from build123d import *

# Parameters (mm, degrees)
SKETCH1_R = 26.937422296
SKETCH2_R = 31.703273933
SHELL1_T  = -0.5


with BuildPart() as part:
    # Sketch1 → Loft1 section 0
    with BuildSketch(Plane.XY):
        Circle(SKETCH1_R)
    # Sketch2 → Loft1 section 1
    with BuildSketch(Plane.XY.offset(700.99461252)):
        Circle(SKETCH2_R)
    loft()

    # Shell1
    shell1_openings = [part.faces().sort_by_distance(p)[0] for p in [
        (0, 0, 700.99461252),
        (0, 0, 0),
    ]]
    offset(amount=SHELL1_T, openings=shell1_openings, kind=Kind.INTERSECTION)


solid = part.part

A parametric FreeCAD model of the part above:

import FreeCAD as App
import Part
import Sketcher


def faces_at(feature, points):
    """Names of the faces that lie closest to the given points."""
    faces = feature.Shape.Faces
    near = lambda p: min(range(len(faces)), key=lambda i: faces[i].distToShape(Part.Vertex(*p))[0])
    return sorted({f"Face{near(p) + 1}" for p in points})

doc = App.newDocument("Part")
params = doc.addObject("Spreadsheet::Sheet", "Params")
for row, (alias, value) in enumerate([
    ("thickness_wall", "0.5 mm"),
], start=1):
    params.set(f"A{row}", alias)
    params.set(f"B{row}", "=" + value)
    params.setAlias(f"B{row}", alias)

body = doc.addObject("PartDesign::Body", "Body")

# Sketch on XY plane
sketch1 = body.newObject("Sketcher::SketchObject", "Sketch")
sketch1.AttachmentSupport = (doc.getObject("XY_Plane"), [""])
sketch1.MapMode = "FlatFace"
sketch1.addGeometry(Part.Circle(App.Vector(0, 0, 0), App.Vector(0, 0, 1), 27), False)
sketch1.addConstraint([
    Sketcher.Constraint("Coincident", 0, 3, -1, 1),
    Sketcher.Constraint("Diameter", 0, 53.874845),
])

# Sketch on XY plane
sketch2 = body.newObject("Sketcher::SketchObject", "Sketch001")
sketch2.AttachmentSupport = (doc.getObject("XY_Plane"), [""])
sketch2.MapMode = "FlatFace"
sketch2.AttachmentOffset = App.Placement(App.Vector(0, 0, 700.994613), App.Rotation())
sketch2.addGeometry(Part.Circle(App.Vector(0, 0, 0), App.Vector(0, 0, 1), 32), False)
sketch2.addConstraint([
    Sketcher.Constraint("Coincident", 0, 3, -1, 1),
    Sketcher.Constraint("Diameter", 0, 63.406548),
])

additiveloft = body.newObject("PartDesign::AdditiveLoft", "AdditiveLoft")
additiveloft.Profile = sketch1
additiveloft.Sections = [sketch2]
doc.recompute()

thickness = body.newObject("PartDesign::Thickness", "Thickness")
thickness.Base = (additiveloft, faces_at(additiveloft, [(0, 0, 700.995), (0, 0, 0)]))
thickness.setExpression("Value", "Params.thickness_wall")
thickness.Reversed = True
thickness.Join = "Intersection"

doc.recompute()
